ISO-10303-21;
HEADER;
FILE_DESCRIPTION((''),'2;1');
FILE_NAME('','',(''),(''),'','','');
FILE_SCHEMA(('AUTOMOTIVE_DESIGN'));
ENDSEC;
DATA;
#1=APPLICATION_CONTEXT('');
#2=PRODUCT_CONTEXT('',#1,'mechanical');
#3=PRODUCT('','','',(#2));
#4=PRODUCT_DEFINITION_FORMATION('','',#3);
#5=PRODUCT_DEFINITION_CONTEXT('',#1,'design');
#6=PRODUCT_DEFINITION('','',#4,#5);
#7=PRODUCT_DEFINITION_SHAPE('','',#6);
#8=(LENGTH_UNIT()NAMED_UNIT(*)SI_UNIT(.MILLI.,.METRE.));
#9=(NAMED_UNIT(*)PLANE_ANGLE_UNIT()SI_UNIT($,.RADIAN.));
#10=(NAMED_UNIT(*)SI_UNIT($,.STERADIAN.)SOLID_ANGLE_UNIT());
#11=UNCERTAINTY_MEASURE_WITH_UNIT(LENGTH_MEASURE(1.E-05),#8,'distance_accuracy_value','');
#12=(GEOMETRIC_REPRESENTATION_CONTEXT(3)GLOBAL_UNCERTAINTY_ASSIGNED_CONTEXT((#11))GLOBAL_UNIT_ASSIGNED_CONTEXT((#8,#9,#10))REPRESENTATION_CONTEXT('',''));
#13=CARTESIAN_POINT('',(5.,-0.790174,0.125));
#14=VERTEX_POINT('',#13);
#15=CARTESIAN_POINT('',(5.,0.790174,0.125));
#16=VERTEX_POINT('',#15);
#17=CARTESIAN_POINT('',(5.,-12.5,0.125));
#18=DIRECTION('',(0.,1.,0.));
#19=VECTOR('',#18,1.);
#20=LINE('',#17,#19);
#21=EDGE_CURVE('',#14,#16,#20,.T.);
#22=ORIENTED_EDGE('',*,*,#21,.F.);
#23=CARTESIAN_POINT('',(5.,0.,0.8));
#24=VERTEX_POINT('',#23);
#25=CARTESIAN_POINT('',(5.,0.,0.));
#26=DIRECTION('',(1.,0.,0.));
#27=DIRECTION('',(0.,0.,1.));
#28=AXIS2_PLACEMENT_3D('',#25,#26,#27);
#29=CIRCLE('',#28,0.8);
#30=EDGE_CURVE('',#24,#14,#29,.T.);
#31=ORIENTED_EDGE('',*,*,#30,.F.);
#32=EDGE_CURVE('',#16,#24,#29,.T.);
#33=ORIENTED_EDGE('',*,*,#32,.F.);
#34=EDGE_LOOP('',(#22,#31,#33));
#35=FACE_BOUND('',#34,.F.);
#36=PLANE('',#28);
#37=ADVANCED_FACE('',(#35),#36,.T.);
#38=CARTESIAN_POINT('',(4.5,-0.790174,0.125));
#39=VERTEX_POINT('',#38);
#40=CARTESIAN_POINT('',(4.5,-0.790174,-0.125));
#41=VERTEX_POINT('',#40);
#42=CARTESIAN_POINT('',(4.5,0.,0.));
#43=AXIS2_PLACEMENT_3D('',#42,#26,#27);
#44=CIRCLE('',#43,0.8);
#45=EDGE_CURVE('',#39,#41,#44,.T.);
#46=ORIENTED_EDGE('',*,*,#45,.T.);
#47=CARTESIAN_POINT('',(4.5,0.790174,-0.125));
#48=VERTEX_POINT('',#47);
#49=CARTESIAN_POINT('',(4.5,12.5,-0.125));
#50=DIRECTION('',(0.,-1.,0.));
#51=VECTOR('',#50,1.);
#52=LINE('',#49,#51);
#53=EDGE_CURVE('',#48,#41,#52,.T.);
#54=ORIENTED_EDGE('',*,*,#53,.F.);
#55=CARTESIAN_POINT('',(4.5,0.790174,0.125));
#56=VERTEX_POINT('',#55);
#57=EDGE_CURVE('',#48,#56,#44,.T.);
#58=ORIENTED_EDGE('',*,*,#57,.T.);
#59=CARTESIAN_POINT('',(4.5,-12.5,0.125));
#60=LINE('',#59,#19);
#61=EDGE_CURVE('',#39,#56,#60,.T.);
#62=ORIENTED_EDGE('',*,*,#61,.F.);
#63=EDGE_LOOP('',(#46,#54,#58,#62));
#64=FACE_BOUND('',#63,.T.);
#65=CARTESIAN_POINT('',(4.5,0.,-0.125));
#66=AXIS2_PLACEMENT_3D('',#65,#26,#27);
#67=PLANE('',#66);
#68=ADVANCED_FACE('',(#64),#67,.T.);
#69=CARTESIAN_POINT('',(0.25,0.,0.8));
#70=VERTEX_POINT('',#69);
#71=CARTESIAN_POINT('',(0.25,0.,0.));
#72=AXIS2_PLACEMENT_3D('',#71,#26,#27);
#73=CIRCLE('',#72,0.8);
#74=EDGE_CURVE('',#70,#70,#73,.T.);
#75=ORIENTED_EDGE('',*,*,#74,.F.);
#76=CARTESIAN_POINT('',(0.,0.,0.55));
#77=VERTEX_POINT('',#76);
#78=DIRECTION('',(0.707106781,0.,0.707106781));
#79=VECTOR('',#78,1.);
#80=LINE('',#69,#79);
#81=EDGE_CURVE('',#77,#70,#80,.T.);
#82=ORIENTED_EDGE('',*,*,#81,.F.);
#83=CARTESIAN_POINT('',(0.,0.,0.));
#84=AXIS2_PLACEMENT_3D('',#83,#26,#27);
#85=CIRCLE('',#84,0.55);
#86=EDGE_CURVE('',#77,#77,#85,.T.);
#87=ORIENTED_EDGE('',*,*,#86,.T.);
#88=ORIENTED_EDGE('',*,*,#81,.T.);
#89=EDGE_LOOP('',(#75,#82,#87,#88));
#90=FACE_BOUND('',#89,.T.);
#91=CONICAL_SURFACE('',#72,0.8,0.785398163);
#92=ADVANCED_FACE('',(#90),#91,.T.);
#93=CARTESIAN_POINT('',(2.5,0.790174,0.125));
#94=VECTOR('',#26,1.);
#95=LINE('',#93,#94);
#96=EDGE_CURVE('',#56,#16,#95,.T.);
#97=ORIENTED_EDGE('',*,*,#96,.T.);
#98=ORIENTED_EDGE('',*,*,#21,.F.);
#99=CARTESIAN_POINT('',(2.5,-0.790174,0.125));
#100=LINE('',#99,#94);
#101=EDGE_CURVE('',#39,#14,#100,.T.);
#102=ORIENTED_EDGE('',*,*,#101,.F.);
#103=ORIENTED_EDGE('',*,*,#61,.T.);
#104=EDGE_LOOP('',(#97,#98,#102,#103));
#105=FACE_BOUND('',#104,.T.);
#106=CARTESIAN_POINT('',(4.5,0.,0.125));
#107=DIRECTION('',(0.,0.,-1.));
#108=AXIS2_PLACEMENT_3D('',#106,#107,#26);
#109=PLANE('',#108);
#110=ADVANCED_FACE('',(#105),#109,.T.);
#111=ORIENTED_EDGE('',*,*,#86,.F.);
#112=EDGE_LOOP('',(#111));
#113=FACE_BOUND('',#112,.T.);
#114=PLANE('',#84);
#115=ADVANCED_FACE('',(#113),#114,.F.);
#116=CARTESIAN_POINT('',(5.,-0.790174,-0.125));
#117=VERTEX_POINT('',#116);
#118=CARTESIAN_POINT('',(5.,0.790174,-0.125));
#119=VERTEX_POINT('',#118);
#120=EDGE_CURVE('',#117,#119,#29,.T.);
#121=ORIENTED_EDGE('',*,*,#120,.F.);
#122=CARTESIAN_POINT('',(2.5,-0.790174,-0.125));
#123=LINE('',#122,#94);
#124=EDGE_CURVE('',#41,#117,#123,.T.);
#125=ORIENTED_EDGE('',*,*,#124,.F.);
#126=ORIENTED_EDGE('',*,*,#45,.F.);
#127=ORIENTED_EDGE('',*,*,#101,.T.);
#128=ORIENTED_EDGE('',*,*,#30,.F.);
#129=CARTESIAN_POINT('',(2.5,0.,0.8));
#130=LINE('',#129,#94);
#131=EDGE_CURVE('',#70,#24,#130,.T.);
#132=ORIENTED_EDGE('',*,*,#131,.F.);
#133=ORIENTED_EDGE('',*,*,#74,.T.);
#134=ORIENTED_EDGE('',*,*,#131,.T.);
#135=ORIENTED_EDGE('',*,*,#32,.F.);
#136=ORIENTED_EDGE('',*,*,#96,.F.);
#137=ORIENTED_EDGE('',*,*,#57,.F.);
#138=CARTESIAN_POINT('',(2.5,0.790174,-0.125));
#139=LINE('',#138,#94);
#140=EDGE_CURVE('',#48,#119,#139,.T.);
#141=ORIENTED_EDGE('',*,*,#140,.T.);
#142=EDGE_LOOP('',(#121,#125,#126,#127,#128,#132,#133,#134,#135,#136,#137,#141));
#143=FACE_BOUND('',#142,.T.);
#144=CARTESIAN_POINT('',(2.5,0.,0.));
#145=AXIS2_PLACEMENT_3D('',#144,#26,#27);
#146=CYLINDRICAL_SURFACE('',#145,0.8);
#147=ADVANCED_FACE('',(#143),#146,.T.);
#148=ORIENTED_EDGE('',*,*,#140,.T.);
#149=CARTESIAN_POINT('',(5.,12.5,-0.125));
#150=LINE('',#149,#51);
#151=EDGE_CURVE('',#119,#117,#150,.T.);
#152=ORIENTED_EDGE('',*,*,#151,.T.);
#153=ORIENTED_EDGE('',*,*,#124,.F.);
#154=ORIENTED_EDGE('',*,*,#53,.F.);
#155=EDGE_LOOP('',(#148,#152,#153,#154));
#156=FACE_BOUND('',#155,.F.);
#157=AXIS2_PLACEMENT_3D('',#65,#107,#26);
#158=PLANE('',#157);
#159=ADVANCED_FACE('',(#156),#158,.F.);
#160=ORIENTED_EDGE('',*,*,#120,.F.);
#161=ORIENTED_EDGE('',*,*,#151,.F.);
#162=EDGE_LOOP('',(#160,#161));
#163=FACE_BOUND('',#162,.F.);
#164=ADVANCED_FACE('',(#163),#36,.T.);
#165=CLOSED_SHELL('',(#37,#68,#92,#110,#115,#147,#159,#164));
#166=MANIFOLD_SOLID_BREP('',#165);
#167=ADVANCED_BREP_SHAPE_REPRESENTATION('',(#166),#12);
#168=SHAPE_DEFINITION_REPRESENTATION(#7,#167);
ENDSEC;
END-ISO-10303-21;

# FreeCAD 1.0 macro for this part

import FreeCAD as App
import Part
import Sketcher
from FreeCAD import Vector


def edges_at(feature, points):
    """Names of the edges that pass closest to the given points."""
    edges = feature.Shape.Edges
    near = lambda p: min(range(len(edges)), key=lambda i: edges[i].distToShape(Part.Vertex(*p))[0])
    return sorted({f"Edge{near(p) + 1}" for p in points})

doc = App.newDocument("Part")
params = doc.addObject("Spreadsheet::Sheet", "Params")
for row, (alias, value) in enumerate([
    ("sketch1_width", "5 mm"),
    ("sketch1_height", "0.8 mm"),
    ("revolution_angle", "360 deg"),
    ("sketch2_width", "0.5 mm"),
    ("sketch2_height", "0.25 mm"),
    ("pocket1_length", "25 mm"),
    ("chamfer_size", "0.25 mm"),
], start=1):
    params.set(f"A{row}", alias)
    params.set(f"B{row}", "=" + value)
    params.setAlias(f"B{row}", alias)

body = doc.addObject("PartDesign::Body", "Body")

# Sketch on XZ plane
sketch1 = doc.addObject("Sketcher::SketchObject", "Sketch")
body.addObject(sketch1)
sketch1.AttachmentSupport = (doc.XZ_Plane, [""])
sketch1.MapMode = "FlatFace"
sketch1.addGeometry([
    Part.LineSegment(Vector(0, 0.8, 0), Vector(0, 0, 0)),
    Part.LineSegment(Vector(0, 0, 0), Vector(5, 0, 0)),
    Part.LineSegment(Vector(5, 0, 0), Vector(5, 0.8, 0)),
    Part.LineSegment(Vector(5, 0.8, 0), Vector(0, 0.8, 0)),
], False)
sketch1.addConstraint([
    Sketcher.Constraint("Coincident", 0, 2, 1, 1),
    Sketcher.Constraint("Coincident", 1, 2, 2, 1),
    Sketcher.Constraint("Coincident", 2, 2, 3, 1),
    Sketcher.Constraint("Coincident", 3, 2, 0, 1),
    Sketcher.Constraint("Vertical", 0),
    Sketcher.Constraint("Horizontal", 1),
    Sketcher.Constraint("Vertical", 2),
    Sketcher.Constraint("Horizontal", 3),
    Sketcher.Constraint("Coincident", 0, 2, -1, 1),
    Sketcher.Constraint("DistanceX", 1, 1, 1, 2, 5.0),
    Sketcher.Constraint("DistanceY", 0, 2, 0, 1, 0.8),
])
sketch1.setExpression("Constraints[9]", "Params.sketch1_width")
sketch1.setExpression("Constraints[10]", "Params.sketch1_height")
revolution = doc.addObject("PartDesign::Revolution", "Revolution")
body.addObject(revolution)
revolution.Profile = sketch1
revolution.ReferenceAxis = (sketch1, ["H_Axis"])
revolution.setExpression("Angle", "Params.revolution_angle")

# Sketch on XZ plane
sketch2 = doc.addObject("Sketcher::SketchObject", "Sketch001")
body.addObject(sketch2)
sketch2.AttachmentSupport = (doc.XZ_Plane, [""])
sketch2.MapMode = "FlatFace"
sketch2.addGeometry([
    Part.LineSegment(Vector(4.5, 0.12, 0), Vector(4.5, -0.12, 0)),
    Part.LineSegment(Vector(4.5, -0.12, 0), Vector(5, -0.12, 0)),
    Part.LineSegment(Vector(5, -0.12, 0), Vector(5, 0.12, 0)),
    Part.LineSegment(Vector(5, 0.12, 0), Vector(4.5, 0.12, 0)),
], False)
sketch2.addConstraint([
    Sketcher.Constraint("Coincident", 0, 2, 1, 1),
    Sketcher.Constraint("Coincident", 1, 2, 2, 1),
    Sketcher.Constraint("Coincident", 2, 2, 3, 1),
    Sketcher.Constraint("Coincident", 3, 2, 0, 1),
    Sketcher.Constraint("Vertical", 0),
    Sketcher.Constraint("Horizontal", 1),
    Sketcher.Constraint("Vertical", 2),
    Sketcher.Constraint("Horizontal", 3),
    Sketcher.Constraint("DistanceX", 1, 1, 1, 2, 0.5),
    Sketcher.Constraint("DistanceX", -1, 1, 1, 2, 5.0),
    Sketcher.Constraint("DistanceY", 0, 2, 0, 1, 0.25),
    Sketcher.Constraint("DistanceY", 0, 2, -1, 1, 0.125),
])
sketch2.setExpression("Constraints[8]", "Params.sketch2_width")
sketch2.setExpression("Constraints[10]", "Params.sketch2_height")
pocket1 = doc.addObject("PartDesign::Pocket", "Pocket")
body.addObject(pocket1)
pocket1.Profile = sketch2
pocket1.setExpression("Length", "Params.pocket1_length")
pocket1.Midplane = True
doc.recompute()

chamfer = doc.addObject("PartDesign::Chamfer", "Chamfer")
body.addObject(chamfer)
chamfer.Base = (pocket1, edges_at(pocket1, [(0, 0, -0.8)]))
chamfer.setExpression("Size", "Params.chamfer_size")

doc.recompute()
